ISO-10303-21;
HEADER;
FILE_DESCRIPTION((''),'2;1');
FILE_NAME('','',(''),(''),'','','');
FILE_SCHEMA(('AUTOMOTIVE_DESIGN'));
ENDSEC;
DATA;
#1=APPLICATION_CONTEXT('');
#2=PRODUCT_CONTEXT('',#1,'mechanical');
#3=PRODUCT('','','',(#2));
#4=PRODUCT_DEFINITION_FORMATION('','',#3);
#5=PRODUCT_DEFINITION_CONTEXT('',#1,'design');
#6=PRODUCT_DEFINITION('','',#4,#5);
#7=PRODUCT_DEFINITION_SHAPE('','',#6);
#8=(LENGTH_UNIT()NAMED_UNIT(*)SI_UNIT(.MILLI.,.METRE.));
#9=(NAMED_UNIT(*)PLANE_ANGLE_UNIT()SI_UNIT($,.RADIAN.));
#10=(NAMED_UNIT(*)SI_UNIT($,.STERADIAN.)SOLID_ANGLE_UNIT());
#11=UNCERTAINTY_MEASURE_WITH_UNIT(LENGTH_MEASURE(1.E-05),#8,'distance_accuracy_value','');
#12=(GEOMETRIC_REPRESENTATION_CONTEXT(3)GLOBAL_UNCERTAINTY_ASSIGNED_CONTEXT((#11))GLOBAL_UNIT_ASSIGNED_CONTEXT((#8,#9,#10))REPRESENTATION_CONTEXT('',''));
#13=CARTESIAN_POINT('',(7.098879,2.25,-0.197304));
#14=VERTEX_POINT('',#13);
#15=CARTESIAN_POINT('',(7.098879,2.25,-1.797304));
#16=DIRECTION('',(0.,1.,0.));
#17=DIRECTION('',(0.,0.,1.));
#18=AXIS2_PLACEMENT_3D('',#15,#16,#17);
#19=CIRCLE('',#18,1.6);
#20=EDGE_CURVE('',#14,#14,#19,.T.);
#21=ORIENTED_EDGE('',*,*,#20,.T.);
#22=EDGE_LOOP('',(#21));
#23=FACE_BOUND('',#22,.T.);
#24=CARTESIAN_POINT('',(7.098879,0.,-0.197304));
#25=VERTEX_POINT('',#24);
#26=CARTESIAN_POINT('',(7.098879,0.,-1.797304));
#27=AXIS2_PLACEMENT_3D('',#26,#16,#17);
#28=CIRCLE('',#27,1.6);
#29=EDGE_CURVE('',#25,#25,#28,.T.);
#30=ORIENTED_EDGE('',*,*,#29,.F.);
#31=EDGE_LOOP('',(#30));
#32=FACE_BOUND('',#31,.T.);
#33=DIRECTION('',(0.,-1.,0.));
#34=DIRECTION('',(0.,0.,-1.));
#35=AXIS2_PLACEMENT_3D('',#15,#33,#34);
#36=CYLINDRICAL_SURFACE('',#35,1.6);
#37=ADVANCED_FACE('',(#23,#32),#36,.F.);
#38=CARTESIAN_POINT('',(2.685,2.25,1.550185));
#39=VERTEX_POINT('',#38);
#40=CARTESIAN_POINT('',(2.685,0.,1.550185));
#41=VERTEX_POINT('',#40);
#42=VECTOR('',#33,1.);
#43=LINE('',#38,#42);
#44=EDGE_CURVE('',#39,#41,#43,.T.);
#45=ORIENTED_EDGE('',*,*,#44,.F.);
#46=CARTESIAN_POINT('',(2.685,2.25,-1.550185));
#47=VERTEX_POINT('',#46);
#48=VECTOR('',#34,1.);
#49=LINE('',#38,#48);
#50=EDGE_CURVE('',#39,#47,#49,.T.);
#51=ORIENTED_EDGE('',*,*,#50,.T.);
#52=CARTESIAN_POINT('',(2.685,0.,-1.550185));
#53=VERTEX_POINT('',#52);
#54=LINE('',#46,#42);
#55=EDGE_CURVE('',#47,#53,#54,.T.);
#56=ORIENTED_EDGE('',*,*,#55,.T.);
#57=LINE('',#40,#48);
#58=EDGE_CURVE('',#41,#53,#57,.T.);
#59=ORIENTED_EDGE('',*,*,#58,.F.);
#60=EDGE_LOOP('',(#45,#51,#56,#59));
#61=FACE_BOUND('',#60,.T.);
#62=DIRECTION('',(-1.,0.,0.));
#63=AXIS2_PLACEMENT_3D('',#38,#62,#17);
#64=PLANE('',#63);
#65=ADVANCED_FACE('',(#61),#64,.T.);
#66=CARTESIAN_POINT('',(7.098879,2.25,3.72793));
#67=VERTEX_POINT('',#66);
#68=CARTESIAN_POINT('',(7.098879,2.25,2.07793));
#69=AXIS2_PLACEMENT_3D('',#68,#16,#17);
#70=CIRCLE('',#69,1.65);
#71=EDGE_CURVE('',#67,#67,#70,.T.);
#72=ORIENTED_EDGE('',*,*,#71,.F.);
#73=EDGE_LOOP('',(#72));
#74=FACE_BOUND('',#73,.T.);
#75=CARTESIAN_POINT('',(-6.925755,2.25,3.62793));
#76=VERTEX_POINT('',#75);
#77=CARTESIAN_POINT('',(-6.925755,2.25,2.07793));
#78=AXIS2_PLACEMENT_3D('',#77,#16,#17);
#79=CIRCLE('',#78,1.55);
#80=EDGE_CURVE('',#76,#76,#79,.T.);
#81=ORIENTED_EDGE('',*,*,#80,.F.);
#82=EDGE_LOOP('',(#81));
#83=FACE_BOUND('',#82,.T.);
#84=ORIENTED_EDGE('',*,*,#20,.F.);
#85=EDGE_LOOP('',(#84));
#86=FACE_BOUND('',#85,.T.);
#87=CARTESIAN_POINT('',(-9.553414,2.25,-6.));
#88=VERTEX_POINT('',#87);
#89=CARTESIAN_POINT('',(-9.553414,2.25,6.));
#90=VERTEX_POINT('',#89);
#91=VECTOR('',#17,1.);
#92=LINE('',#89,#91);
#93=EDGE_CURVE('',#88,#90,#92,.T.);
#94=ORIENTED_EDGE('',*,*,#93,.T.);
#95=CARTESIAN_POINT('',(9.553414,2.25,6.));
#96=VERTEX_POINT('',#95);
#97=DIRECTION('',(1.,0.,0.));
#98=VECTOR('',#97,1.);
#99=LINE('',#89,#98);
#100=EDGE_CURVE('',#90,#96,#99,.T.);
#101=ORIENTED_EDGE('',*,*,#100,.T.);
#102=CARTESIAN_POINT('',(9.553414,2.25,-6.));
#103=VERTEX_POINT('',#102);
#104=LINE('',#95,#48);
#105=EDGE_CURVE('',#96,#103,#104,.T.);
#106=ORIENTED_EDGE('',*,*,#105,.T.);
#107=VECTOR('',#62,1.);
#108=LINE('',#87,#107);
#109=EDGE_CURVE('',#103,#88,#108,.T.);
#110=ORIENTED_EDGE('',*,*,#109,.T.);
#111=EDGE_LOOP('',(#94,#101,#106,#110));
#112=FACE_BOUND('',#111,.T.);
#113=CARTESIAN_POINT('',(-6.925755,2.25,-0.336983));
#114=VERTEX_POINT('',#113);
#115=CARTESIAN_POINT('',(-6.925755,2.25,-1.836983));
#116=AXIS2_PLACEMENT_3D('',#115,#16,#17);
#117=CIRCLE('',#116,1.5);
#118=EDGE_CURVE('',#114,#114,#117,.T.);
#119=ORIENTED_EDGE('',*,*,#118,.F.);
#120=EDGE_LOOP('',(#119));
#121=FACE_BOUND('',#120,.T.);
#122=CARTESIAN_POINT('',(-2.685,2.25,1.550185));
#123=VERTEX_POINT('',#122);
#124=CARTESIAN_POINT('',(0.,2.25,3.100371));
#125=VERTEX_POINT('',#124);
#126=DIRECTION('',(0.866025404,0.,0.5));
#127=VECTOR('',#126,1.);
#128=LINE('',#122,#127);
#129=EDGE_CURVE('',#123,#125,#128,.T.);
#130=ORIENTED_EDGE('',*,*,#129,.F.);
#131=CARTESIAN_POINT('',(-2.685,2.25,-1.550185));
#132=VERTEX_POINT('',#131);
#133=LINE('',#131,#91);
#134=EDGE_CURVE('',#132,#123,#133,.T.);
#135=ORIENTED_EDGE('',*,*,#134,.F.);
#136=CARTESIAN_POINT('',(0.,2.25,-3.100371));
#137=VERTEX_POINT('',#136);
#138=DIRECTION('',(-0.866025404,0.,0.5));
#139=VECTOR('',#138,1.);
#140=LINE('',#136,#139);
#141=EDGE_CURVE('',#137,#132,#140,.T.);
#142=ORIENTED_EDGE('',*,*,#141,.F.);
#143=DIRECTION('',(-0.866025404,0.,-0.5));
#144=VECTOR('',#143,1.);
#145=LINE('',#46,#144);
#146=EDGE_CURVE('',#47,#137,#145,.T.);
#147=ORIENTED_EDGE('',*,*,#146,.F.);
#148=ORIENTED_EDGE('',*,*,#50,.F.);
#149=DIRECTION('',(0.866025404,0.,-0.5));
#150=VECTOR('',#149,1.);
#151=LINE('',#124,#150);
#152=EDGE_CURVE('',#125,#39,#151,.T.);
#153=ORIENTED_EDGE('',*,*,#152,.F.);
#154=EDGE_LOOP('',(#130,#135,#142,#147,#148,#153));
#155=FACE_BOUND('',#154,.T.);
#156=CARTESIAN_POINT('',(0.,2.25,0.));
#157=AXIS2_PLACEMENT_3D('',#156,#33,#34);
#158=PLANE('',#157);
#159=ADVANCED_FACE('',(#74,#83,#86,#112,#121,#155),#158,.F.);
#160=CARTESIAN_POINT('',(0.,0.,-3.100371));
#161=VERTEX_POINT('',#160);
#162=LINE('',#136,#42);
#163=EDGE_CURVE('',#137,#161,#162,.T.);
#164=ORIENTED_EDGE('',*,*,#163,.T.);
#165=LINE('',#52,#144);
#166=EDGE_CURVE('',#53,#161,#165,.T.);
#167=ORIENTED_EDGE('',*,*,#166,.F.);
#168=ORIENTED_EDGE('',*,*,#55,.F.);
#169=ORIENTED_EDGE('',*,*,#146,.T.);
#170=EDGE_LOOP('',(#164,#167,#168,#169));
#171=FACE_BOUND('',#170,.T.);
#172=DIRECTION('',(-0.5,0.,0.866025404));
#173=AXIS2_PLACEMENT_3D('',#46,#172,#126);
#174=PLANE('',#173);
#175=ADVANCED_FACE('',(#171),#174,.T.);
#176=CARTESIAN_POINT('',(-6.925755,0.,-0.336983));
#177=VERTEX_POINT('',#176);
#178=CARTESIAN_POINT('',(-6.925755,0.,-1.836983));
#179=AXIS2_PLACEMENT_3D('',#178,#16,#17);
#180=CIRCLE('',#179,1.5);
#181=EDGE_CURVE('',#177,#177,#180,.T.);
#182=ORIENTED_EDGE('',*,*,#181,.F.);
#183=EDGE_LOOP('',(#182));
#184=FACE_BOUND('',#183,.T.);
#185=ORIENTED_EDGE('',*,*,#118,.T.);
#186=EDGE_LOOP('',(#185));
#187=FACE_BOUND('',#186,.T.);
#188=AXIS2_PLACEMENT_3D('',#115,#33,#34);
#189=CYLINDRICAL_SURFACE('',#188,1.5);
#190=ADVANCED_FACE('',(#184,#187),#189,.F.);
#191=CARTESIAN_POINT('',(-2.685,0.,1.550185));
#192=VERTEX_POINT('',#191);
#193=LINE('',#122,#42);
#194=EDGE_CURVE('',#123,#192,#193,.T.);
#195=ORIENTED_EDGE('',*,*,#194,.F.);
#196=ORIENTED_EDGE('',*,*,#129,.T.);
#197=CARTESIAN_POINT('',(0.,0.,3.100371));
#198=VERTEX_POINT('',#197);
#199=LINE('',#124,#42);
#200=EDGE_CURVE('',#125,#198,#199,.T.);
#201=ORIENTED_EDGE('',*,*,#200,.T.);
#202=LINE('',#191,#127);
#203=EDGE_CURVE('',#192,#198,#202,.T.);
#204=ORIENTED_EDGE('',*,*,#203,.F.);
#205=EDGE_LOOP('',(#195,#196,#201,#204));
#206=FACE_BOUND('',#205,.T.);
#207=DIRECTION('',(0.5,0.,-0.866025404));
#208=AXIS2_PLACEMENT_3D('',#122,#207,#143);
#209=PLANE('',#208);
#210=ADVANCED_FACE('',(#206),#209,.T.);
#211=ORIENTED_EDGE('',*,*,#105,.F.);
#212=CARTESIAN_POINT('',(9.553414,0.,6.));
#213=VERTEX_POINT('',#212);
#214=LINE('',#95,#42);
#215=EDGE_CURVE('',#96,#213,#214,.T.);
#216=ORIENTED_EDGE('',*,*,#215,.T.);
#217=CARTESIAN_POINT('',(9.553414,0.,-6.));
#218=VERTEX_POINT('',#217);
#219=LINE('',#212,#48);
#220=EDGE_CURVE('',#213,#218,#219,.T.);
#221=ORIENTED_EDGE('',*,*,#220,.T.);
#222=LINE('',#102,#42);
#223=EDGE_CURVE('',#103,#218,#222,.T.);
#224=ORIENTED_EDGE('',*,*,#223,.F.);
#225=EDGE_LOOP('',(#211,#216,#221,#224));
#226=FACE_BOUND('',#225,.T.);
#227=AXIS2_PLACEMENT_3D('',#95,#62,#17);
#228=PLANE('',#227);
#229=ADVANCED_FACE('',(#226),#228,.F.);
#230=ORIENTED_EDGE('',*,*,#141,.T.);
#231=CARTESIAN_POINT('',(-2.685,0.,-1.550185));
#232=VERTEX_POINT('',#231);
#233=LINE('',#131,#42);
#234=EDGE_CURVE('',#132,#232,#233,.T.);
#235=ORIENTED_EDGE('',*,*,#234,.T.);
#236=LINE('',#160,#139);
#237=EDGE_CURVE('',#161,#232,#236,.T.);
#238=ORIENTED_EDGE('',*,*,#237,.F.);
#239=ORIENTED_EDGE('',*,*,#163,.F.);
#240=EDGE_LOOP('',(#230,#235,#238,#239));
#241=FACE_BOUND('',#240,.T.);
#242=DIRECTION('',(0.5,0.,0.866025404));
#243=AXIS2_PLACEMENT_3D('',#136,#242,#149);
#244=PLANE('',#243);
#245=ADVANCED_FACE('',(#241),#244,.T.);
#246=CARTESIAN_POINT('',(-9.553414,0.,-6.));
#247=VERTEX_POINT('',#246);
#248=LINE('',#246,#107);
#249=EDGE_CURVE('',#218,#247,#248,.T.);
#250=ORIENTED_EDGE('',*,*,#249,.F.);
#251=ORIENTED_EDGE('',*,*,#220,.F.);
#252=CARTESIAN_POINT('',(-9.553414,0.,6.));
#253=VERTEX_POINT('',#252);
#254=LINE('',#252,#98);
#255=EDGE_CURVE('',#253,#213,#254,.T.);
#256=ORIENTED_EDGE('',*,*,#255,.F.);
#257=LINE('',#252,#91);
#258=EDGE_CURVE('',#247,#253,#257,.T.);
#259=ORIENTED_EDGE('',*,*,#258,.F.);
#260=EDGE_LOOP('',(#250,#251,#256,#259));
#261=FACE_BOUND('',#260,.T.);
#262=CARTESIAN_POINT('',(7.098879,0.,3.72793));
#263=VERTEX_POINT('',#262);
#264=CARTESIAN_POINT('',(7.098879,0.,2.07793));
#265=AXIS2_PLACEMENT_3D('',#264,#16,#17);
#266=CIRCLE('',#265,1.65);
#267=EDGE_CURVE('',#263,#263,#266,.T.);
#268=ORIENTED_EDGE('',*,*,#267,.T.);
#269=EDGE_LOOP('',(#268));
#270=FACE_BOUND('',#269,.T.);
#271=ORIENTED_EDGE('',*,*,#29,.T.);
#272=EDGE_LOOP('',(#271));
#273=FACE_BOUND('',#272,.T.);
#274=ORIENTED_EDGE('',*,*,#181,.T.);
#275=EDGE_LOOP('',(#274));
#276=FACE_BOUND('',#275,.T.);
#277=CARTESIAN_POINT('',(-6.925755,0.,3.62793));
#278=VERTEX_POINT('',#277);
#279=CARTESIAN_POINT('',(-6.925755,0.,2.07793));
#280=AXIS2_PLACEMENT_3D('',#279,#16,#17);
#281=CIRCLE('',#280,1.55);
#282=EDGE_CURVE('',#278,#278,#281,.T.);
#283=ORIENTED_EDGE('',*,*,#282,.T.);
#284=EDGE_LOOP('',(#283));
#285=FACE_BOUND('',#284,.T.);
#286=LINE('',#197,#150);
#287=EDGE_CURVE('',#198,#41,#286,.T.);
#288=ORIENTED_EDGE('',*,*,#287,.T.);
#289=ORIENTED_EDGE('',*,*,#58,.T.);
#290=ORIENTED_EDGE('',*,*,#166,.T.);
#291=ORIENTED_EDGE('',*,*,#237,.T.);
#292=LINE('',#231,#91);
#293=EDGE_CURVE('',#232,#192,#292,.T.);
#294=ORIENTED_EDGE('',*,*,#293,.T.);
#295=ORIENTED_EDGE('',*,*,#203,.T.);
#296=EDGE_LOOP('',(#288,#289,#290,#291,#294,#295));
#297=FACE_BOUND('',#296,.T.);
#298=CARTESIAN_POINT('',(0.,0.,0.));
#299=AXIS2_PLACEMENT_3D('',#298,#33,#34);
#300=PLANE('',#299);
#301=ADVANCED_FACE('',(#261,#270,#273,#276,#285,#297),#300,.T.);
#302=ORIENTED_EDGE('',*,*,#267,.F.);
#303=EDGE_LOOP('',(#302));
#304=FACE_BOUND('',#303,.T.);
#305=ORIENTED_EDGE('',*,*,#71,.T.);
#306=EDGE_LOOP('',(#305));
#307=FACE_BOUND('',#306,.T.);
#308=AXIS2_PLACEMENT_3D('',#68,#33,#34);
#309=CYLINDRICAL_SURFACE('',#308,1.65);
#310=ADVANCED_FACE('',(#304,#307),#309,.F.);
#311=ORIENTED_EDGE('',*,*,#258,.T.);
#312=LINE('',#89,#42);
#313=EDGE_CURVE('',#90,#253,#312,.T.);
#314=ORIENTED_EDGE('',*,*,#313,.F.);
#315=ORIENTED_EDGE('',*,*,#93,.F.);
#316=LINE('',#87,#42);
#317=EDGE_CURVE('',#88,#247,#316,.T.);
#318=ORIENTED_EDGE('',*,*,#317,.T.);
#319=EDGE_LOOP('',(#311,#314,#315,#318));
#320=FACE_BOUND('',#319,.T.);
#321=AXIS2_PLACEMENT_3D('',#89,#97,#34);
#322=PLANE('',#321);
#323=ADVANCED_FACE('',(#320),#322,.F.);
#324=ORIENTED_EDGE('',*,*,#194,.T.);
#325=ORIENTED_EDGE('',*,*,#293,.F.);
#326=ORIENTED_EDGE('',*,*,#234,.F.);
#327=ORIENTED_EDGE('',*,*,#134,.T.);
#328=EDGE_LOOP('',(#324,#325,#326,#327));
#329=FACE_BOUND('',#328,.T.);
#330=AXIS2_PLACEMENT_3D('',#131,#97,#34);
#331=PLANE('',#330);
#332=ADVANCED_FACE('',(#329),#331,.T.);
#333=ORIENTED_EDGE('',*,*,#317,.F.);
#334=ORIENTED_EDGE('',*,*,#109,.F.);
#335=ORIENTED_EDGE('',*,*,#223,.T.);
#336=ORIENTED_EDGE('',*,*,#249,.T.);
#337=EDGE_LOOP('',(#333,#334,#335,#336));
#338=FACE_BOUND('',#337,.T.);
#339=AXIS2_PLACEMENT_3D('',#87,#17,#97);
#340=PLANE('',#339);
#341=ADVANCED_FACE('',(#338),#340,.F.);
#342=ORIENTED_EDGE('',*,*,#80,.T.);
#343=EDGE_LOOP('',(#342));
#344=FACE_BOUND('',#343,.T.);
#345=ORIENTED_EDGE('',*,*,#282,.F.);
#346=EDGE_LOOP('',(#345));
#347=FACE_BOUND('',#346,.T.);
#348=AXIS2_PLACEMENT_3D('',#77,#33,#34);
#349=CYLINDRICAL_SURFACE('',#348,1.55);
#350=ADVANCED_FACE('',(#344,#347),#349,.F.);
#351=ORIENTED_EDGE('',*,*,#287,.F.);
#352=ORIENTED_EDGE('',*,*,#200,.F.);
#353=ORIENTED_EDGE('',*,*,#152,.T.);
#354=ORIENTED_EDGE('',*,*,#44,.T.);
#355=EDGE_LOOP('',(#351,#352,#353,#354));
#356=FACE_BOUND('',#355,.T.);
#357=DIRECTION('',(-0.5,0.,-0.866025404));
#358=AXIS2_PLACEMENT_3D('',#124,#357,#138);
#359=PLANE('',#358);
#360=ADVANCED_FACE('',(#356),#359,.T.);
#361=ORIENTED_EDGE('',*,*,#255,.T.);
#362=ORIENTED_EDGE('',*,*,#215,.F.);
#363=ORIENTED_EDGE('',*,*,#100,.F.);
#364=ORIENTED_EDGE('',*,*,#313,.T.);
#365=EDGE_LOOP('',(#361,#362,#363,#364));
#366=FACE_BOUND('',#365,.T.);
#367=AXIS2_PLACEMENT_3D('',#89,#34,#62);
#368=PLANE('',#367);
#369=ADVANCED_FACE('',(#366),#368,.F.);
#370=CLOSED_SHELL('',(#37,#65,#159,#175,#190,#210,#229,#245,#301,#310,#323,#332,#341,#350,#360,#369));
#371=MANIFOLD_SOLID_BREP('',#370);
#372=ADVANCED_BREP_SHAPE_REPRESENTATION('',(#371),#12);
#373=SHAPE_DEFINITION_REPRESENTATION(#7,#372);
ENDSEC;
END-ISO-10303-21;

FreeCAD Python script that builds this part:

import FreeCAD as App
import Part
import Sketcher

V = App.Vector
Q = App.Units.Quantity

doc = App.newDocument("Part")
body = doc.addObject("PartDesign::Body", "Body")

# Sketch on XZ plane
sketch1 = body.newObject("Sketcher::SketchObject", "Sketch")
sketch1.AttachmentSupport = (doc.getObject("XZ_Plane"), [""])
sketch1.MapMode = "FlatFace"
sketch1.addGeometry([
    Part.LineSegment(V(-9.6, -6, 0), V(-9.6, 6, 0)),  # 0
    Part.LineSegment(V(-9.6, 6, 0), V(9.6, 6, 0)),  # 1
    Part.LineSegment(V(9.6, 6, 0), V(9.6, -6, 0)),  # 2
    Part.LineSegment(V(9.6, -6, 0), V(-9.6, -6, 0)),  # 3
    Part.Circle(V(-6.9, 2.1, 0), V(0, 0, 1), 1.6),  # 4
    Part.Circle(V(7.1, 2.1, 0), V(0, 0, 1), 1.6),  # 5
    Part.LineSegment(V(0, -3.1, 0), V(2.7, -1.6, 0)),  # 6
    Part.LineSegment(V(2.7, -1.6, 0), V(2.7, 1.6, 0)),  # 7
    Part.LineSegment(V(2.7, 1.6, 0), V(0, 3.1, 0)),  # 8
    Part.LineSegment(V(0, 3.1, 0), V(-2.7, 1.6, 0)),  # 9
    Part.LineSegment(V(-2.7, 1.6, 0), V(-2.7, -1.6, 0)),  # 10
    Part.LineSegment(V(-2.7, -1.6, 0), V(0, -3.1, 0)),  # 11
    Part.Circle(V(-6.9, -1.8, 0), V(0, 0, 1), 1.5),  # 12
    Part.Circle(V(7.1, -1.8, 0), V(0, 0, 1), 1.6),  # 13
], False)
sketch1.addConstraint([
    Sketcher.Constraint("Coincident", 0, 2, 1, 1),
    Sketcher.Constraint("Coincident", 1, 2, 2, 1),
    Sketcher.Constraint("Coincident", 2, 2, 3, 1),
    Sketcher.Constraint("Coincident", 3, 2, 0, 1),
    Sketcher.Constraint("Coincident", 6, 2, 7, 1),
    Sketcher.Constraint("Coincident", 7, 2, 8, 1),
    Sketcher.Constraint("Coincident", 8, 2, 9, 1),
    Sketcher.Constraint("Coincident", 9, 2, 10, 1),
    Sketcher.Constraint("Coincident", 10, 2, 11, 1),
    Sketcher.Constraint("Coincident", 11, 2, 6, 1),
    Sketcher.Constraint("Vertical", 0),
    Sketcher.Constraint("Horizontal", 1),
    Sketcher.Constraint("Vertical", 2),
    Sketcher.Constraint("Horizontal", 3),
    Sketcher.Constraint("Vertical", 7),
    Sketcher.Constraint("Vertical", 10),
    Sketcher.Constraint("Symmetric", 0, 2, 2, 2, -1, 1),
    Sketcher.Constraint("Symmetric", 6, 2, 9, 2, -1, 1),
    Sketcher.Constraint("Symmetric", 8, 2, 11, 2, -1, 1),
    Sketcher.Constraint("PointOnObject", 8, 2, -2),
    Sketcher.Constraint("Parallel", 8, 11),
    Sketcher.Constraint("Horizontal", 4, 3, 5, 3),
    Sketcher.Constraint("Horizontal", 7, 2, 9, 2),
    Sketcher.Constraint("Vertical", 4, 3, 12, 3),
    Sketcher.Constraint("Vertical", 5, 3, 13, 3),
    Sketcher.Constraint("Diameter", 12, 3.0),
    Sketcher.Constraint("Diameter", 4, 3.1),
    Sketcher.Constraint("Diameter", 5, 3.3),
    Sketcher.Constraint("Diameter", 13, 3.2),
    Sketcher.Constraint("DistanceY", 0, 1, 0, 2, 12.0),
    Sketcher.Constraint("Angle", 6, Q("30 deg")),
    Sketcher.Constraint("DistanceX", 9, 2, 7, 2, 5.37),
    Sketcher.Constraint("DistanceY", 7, 1, 7, 2, 3.100371),
    Sketcher.Constraint("DistanceX", 1, 1, 1, 2, 19.106828),
    Sketcher.Constraint("DistanceY", -1, 1, 4, 3, 2.07793),
    Sketcher.Constraint("DistanceX", -1, 1, 5, 3, 7.098879),
    Sketcher.Constraint("DistanceY", 12, 3, 13, 3, 0.039679),
    Sketcher.Constraint("DistanceX", 0, 2, 4, 3, 2.627659),
    Sketcher.Constraint("DistanceY", 13, 3, 6, 2, 0.247118),
])
pad1 = body.newObject("PartDesign::Pad", "Pad")
pad1.Profile = sketch1
pad1.Length = 2.25
pad1.Reversed = True

doc.recompute()
